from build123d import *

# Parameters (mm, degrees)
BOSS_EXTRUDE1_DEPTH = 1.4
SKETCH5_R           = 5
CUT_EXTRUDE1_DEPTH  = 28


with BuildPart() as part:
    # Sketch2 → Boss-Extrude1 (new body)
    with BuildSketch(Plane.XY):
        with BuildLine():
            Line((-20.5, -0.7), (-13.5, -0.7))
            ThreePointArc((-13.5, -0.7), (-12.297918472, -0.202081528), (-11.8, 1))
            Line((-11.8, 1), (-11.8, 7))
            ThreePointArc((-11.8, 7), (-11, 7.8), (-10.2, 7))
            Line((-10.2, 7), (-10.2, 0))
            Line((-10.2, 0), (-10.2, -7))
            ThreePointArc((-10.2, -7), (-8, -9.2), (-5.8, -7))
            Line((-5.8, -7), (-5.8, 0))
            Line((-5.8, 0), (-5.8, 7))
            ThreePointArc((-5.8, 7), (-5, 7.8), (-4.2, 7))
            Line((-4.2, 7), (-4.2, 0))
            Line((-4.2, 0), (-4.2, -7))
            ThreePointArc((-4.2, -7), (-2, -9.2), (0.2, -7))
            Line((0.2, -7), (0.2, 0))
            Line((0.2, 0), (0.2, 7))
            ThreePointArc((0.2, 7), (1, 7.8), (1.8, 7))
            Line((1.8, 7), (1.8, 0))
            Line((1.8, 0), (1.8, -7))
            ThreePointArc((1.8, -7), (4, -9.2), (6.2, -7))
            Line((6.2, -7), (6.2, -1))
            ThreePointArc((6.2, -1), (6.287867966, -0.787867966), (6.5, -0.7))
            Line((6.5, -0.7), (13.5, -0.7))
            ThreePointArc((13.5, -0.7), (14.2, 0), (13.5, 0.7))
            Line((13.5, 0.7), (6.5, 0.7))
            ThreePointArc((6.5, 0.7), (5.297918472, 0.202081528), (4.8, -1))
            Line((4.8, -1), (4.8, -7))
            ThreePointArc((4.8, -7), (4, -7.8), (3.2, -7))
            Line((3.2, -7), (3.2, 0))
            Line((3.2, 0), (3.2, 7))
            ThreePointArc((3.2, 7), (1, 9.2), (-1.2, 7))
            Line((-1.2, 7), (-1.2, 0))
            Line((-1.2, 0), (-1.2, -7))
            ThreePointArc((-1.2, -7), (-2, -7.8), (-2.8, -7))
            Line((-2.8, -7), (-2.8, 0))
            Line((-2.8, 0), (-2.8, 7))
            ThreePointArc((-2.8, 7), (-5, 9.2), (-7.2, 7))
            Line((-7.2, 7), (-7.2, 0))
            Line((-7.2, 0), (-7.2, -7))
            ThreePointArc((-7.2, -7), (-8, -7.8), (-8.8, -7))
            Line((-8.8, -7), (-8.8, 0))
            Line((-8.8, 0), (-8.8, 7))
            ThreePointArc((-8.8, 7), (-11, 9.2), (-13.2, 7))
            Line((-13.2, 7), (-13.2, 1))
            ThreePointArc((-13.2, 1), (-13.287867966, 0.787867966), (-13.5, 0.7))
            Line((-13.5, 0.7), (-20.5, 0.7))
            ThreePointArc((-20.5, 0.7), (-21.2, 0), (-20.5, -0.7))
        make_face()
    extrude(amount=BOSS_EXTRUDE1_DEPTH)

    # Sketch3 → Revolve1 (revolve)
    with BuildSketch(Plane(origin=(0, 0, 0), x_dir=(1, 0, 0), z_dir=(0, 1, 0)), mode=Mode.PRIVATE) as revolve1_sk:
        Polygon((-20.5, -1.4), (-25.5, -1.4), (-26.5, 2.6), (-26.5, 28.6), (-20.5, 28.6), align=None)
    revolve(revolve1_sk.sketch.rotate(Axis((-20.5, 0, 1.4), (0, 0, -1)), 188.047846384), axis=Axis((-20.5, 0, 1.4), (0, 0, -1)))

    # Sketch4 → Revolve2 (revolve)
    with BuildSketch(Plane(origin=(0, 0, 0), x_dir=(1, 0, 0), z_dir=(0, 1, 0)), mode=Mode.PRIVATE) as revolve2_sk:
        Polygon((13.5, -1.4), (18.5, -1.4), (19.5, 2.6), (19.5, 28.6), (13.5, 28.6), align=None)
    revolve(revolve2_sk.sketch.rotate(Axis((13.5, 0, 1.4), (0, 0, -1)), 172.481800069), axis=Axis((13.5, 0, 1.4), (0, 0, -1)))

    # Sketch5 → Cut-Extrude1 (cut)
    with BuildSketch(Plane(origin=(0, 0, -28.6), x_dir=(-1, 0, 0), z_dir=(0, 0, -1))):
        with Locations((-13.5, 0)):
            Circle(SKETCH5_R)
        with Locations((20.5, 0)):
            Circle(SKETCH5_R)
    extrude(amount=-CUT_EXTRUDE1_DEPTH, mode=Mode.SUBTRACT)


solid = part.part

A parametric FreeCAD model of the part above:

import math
import FreeCAD as App
import Part
import Sketcher
from FreeCAD import Vector


def add_polygon(sketch, points):
    """Adds a closed chain of lines whose ends are joined by coincident constraints."""
    first, n = sketch.GeometryCount, len(points)
    for a, b in zip(points, points[1:] + points[:1]):
        sketch.addGeometry(Part.LineSegment(App.Vector(*a, 0), App.Vector(*b, 0)), False)
    for i in range(n):
        sketch.addConstraint(Sketcher.Constraint("Coincident", first + i, 2, first + (i + 1) % n, 1))

doc = App.newDocument("Part")
body = doc.addObject("PartDesign::Body", "Body")

sketch1 = body.newObject("Sketcher::SketchObject", "Sketch")
sketch1.AttachmentSupport = (doc.getObject("XY_Plane"), [""])
sketch1.MapMode = "FlatFace"
sketch1.addGeometry(Part.LineSegment(Vector(-20.5, -0.7, 0), Vector(-13.5, -0.7, 0)), False)
sketch1.addGeometry(Part.ArcOfCircle(Part.Circle(Vector(-13.5, 1, 0), Vector(0, 0, 1), 1.7), math.radians(-90), math.radians(0)), False)
sketch1.addGeometry(Part.LineSegment(Vector(-11.8, 1, 0), Vector(-11.8, 7, 0)), False)
sketch1.addGeometry(Part.ArcOfCircle(Part.Circle(Vector(-11, 7, 0), Vector(0, 0, 1), 0.8), math.radians(0), math.radians(180)), False)
sketch1.addGeometry(Part.LineSegment(Vector(-10.2, 7, 0), Vector(-10.2, -7, 0)), False)
sketch1.addGeometry(Part.ArcOfCircle(Part.Circle(Vector(-8, -7, 0), Vector(0, 0, 1), 2.2), math.radians(180), math.radians(360)), False)
sketch1.addGeometry(Part.LineSegment(Vector(-5.8, -7, 0), Vector(-5.8, 7, 0)), False)
sketch1.addGeometry(Part.ArcOfCircle(Part.Circle(Vector(-5, 7, 0), Vector(0, 0, 1), 0.8), math.radians(0), math.radians(180)), False)
sketch1.addGeometry(Part.LineSegment(Vector(-4.2, 7, 0), Vector(-4.2, -7, 0)), False)
sketch1.addGeometry(Part.ArcOfCircle(Part.Circle(Vector(-2, -7, 0), Vector(0, 0, 1), 2.2), math.radians(180), math.radians(360)), False)
sketch1.addGeometry(Part.LineSegment(Vector(0.2, -7, 0), Vector(0.2, 7, 0)), False)
sketch1.addGeometry(Part.ArcOfCircle(Part.Circle(Vector(1, 7, 0), Vector(0, 0, 1), 0.8), math.radians(0), math.radians(180)), False)
sketch1.addGeometry(Part.LineSegment(Vector(1.8, 7, 0), Vector(1.8, -7, 0)), False)
sketch1.addGeometry(Part.ArcOfCircle(Part.Circle(Vector(4, -7, 0), Vector(0, 0, 1), 2.2), math.radians(180), math.radians(360)), False)
sketch1.addGeometry(Part.LineSegment(Vector(6.2, -7, 0), Vector(6.2, -1, 0)), False)
sketch1.addGeometry(Part.ArcOfCircle(Part.Circle(Vector(6.5, -1, 0), Vector(0, 0, 1), 0.3), math.radians(90), math.radians(180)), False)
sketch1.addGeometry(Part.LineSegment(Vector(6.5, -0.7, 0), Vector(13.5, -0.7, 0)), False)
sketch1.addGeometry(Part.ArcOfCircle(Part.Circle(Vector(13.5, 0, 0), Vector(0, 0, 1), 0.7), math.radians(-90), math.radians(90)), False)
sketch1.addGeometry(Part.LineSegment(Vector(13.5, 0.7, 0), Vector(6.5, 0.7, 0)), False)
sketch1.addGeometry(Part.ArcOfCircle(Part.Circle(Vector(6.5, -1, 0), Vector(0, 0, 1), 1.7), math.radians(90), math.radians(180)), False)
sketch1.addGeometry(Part.LineSegment(Vector(4.8, -1, 0), Vector(4.8, -7, 0)), False)
sketch1.addGeometry(Part.ArcOfCircle(Part.Circle(Vector(4, -7, 0), Vector(0, 0, 1), 0.8), math.radians(180), math.radians(360)), False)
sketch1.addGeometry(Part.LineSegment(Vector(3.2, -7, 0), Vector(3.2, 7, 0)), False)
sketch1.addGeometry(Part.ArcOfCircle(Part.Circle(Vector(1, 7, 0), Vector(0, 0, 1), 2.2), math.radians(0), math.radians(180)), False)
sketch1.addGeometry(Part.LineSegment(Vector(-1.2, 7, 0), Vector(-1.2, -7, 0)), False)
sketch1.addGeometry(Part.ArcOfCircle(Part.Circle(Vector(-2, -7, 0), Vector(0, 0, 1), 0.8), math.radians(180), math.radians(360)), False)
sketch1.addGeometry(Part.LineSegment(Vector(-2.8, -7, 0), Vector(-2.8, 7, 0)), False)
sketch1.addGeometry(Part.ArcOfCircle(Part.Circle(Vector(-5, 7, 0), Vector(0, 0, 1), 2.2), math.radians(0), math.radians(180)), False)
sketch1.addGeometry(Part.LineSegment(Vector(-7.2, 7, 0), Vector(-7.2, -7, 0)), False)
sketch1.addGeometry(Part.ArcOfCircle(Part.Circle(Vector(-8, -7, 0), Vector(0, 0, 1), 0.8), math.radians(180), math.radians(360)), False)
sketch1.addGeometry(Part.LineSegment(Vector(-8.8, -7, 0), Vector(-8.8, 7, 0)), False)
sketch1.addGeometry(Part.ArcOfCircle(Part.Circle(Vector(-11, 7, 0), Vector(0, 0, 1), 2.2), math.radians(0), math.radians(180)), False)
sketch1.addGeometry(Part.LineSegment(Vector(-13.2, 7, 0), Vector(-13.2, 1, 0)), False)
sketch1.addGeometry(Part.ArcOfCircle(Part.Circle(Vector(-13.5, 1, 0), Vector(0, 0, 1), 0.3), math.radians(-90), math.radians(0)), False)
sketch1.addGeometry(Part.LineSegment(Vector(-13.5, 0.7, 0), Vector(-20.5, 0.7, 0)), False)
sketch1.addGeometry(Part.ArcOfCircle(Part.Circle(Vector(-20.5, 0, 0), Vector(0, 0, 1), 0.7), math.radians(90), math.radians(270)), False)
sketch1.addConstraint(Sketcher.Constraint("Tangent", 0, 2, 1, 1))
sketch1.addConstraint(Sketcher.Constraint("Tangent", 1, 2, 2, 1))
sketch1.addConstraint(Sketcher.Constraint("Tangent", 2, 2, 3, 2))
sketch1.addConstraint(Sketcher.Constraint("Tangent", 3, 1, 4, 1))
sketch1.addConstraint(Sketcher.Constraint("Tangent", 4, 2, 5, 1))
sketch1.addConstraint(Sketcher.Constraint("Tangent", 5, 2, 6, 1))
sketch1.addConstraint(Sketcher.Constraint("Tangent", 6, 2, 7, 2))
sketch1.addConstraint(Sketcher.Constraint("Tangent", 7, 1, 8, 1))
sketch1.addConstraint(Sketcher.Constraint("Tangent", 8, 2, 9, 1))
sketch1.addConstraint(Sketcher.Constraint("Tangent", 9, 2, 10, 1))
sketch1.addConstraint(Sketcher.Constraint("Tangent", 10, 2, 11, 2))
sketch1.addConstraint(Sketcher.Constraint("Tangent", 11, 1, 12, 1))
sketch1.addConstraint(Sketcher.Constraint("Tangent", 12, 2, 13, 1))
sketch1.addConstraint(Sketcher.Constraint("Tangent", 13, 2, 14, 1))
sketch1.addConstraint(Sketcher.Constraint("Tangent", 14, 2, 15, 2))
sketch1.addConstraint(Sketcher.Constraint("Tangent", 15, 1, 16, 1))
sketch1.addConstraint(Sketcher.Constraint("Tangent", 16, 2, 17, 1))
sketch1.addConstraint(Sketcher.Constraint("Tangent", 17, 2, 18, 1))
sketch1.addConstraint(Sketcher.Constraint("Tangent", 18, 2, 19, 1))
sketch1.addConstraint(Sketcher.Constraint("Tangent", 19, 2, 20, 1))
sketch1.addConstraint(Sketcher.Constraint("Tangent", 20, 2, 21, 2))
sketch1.addConstraint(Sketcher.Constraint("Tangent", 21, 1, 22, 1))
sketch1.addConstraint(Sketcher.Constraint("Tangent", 22, 2, 23, 1))
sketch1.addConstraint(Sketcher.Constraint("Tangent", 23, 2, 24, 1))
sketch1.addConstraint(Sketcher.Constraint("Tangent", 24, 2, 25, 2))
sketch1.addConstraint(Sketcher.Constraint("Tangent", 25, 1, 26, 1))
sketch1.addConstraint(Sketcher.Constraint("Tangent", 26, 2, 27, 1))
sketch1.addConstraint(Sketcher.Constraint("Tangent", 27, 2, 28, 1))
sketch1.addConstraint(Sketcher.Constraint("Tangent", 28, 2, 29, 2))
sketch1.addConstraint(Sketcher.Constraint("Tangent", 29, 1, 30, 1))
sketch1.addConstraint(Sketcher.Constraint("Tangent", 30, 2, 31, 1))
sketch1.addConstraint(Sketcher.Constraint("Tangent", 31, 2, 32, 1))
sketch1.addConstraint(Sketcher.Constraint("Tangent", 32, 2, 33, 2))
sketch1.addConstraint(Sketcher.Constraint("Tangent", 33, 1, 34, 1))
sketch1.addConstraint(Sketcher.Constraint("Tangent", 34, 2, 35, 1))
sketch1.addConstraint(Sketcher.Constraint("Tangent", 35, 2, 0, 1))
sketch1.addConstraint(Sketcher.Constraint("Horizontal", 0))
sketch1.addConstraint(Sketcher.Constraint("Vertical", 2))
sketch1.addConstraint(Sketcher.Constraint("Vertical", 4))
sketch1.addConstraint(Sketcher.Constraint("Vertical", 6))
sketch1.addConstraint(Sketcher.Constraint("Vertical", 8))
sketch1.addConstraint(Sketcher.Constraint("Vertical", 10))
sketch1.addConstraint(Sketcher.Constraint("Vertical", 12))
sketch1.addConstraint(Sketcher.Constraint("Vertical", 14))
sketch1.addConstraint(Sketcher.Constraint("Horizontal", 16))
sketch1.addConstraint(Sketcher.Constraint("Horizontal", 18))
sketch1.addConstraint(Sketcher.Constraint("Vertical", 20))
sketch1.addConstraint(Sketcher.Constraint("Vertical", 22))
sketch1.addConstraint(Sketcher.Constraint("Vertical", 24))
sketch1.addConstraint(Sketcher.Constraint("Vertical", 26))
sketch1.addConstraint(Sketcher.Constraint("Vertical", 28))
sketch1.addConstraint(Sketcher.Constraint("Vertical", 30))
sketch1.addConstraint(Sketcher.Constraint("Vertical", 32))
sketch1.addConstraint(Sketcher.Constraint("Horizontal", 34))
sketch1.addConstraint(Sketcher.Constraint("Coincident", 19, 3, 15, 3))
sketch1.addConstraint(Sketcher.Constraint("Coincident", 21, 3, 13, 3))
sketch1.addConstraint(Sketcher.Constraint("Coincident", 23, 3, 11, 3))
sketch1.addConstraint(Sketcher.Constraint("Coincident", 25, 3, 9, 3))
sketch1.addConstraint(Sketcher.Constraint("Coincident", 27, 3, 7, 3))
sketch1.addConstraint(Sketcher.Constraint("Coincident", 29, 3, 5, 3))
sketch1.addConstraint(Sketcher.Constraint("Coincident", 31, 3, 3, 3))
sketch1.addConstraint(Sketcher.Constraint("Coincident", 33, 3, 1, 3))
sketch1.addConstraint(Sketcher.Constraint("Equal", 3, 7))
sketch1.addConstraint(Sketcher.Constraint("Equal", 5, 9))
sketch1.addConstraint(Sketcher.Constraint("Equal", 7, 11))
sketch1.addConstraint(Sketcher.Constraint("Equal", 9, 13))
sketch1.addConstraint(Sketcher.Constraint("Equal", 1, 19))
sketch1.addConstraint(Sketcher.Constraint("Equal", 11, 21))
sketch1.addConstraint(Sketcher.Constraint("Symmetric", 0, 2, 17, 2, -1, 1))
sketch1.addConstraint(Sketcher.Constraint("PointOnObject", 17, 3, -1))
sketch1.addConstraint(Sketcher.Constraint("Horizontal", 3, 3, 7, 3))
sketch1.addConstraint(Sketcher.Constraint("Horizontal", 5, 3, 9, 3))
sketch1.addConstraint(Sketcher.Constraint("Horizontal", 7, 3, 11, 3))
sketch1.addConstraint(Sketcher.Constraint("Horizontal", 9, 3, 13, 3))
sketch1.addConstraint(Sketcher.Constraint("Equal", 0, 16))
sketch1.addConstraint(Sketcher.Constraint("Equal", 2, 14))
sketch1.addConstraint(Sketcher.Constraint("Radius", 1, 1.7))
sketch1.addConstraint(Sketcher.Constraint("Radius", 3, 0.8))
sketch1.addConstraint(Sketcher.Constraint("Radius", 5, 2.2))
sketch1.addConstraint(Sketcher.Constraint("DistanceX", 0, 1, 0, 2, 7.0))
sketch1.addConstraint(Sketcher.Constraint("DistanceY", 2, 1, 2, 2, 6.0))
pad1 = body.newObject("PartDesign::Pad", "Pad")
pad1.Profile = sketch1
pad1.Length = 1.4

sketch2 = body.newObject("Sketcher::SketchObject", "Sketch001")
sketch2.AttachmentSupport = (doc.getObject("XZ_Plane"), [""])
sketch2.MapMode = "FlatFace"
add_polygon(sketch2, [(-25.5, 1.4), (-20.5, 1.4), (-20.5, -28.6), (-26.5, -28.6), (-26.5, -2.6)])
sketch2.addGeometry(Part.LineSegment(Vector(-20.5, 1.4, 0), Vector(-20.5, -28.6, 0)), True)
sketch2.addConstraint(Sketcher.Constraint("Horizontal", 0))
sketch2.addConstraint(Sketcher.Constraint("Vertical", 1))
sketch2.addConstraint(Sketcher.Constraint("Horizontal", 2))
sketch2.addConstraint(Sketcher.Constraint("Vertical", 3))
sketch2.addConstraint(Sketcher.Constraint("Vertical", 5))
sketch2.addConstraint(Sketcher.Constraint("Coincident", 5, 1, 0, 2))
sketch2.addConstraint(Sketcher.Constraint("Horizontal", 2, 2, 5, 2))
sketch2.addConstraint(Sketcher.Constraint("DistanceX", 0, 1, 0, 2, 5.0))
sketch2.addConstraint(Sketcher.Constraint("DistanceX", 2, 2, 2, 1, 6.0))
sketch2.addConstraint(Sketcher.Constraint("DistanceY", 1, 2, 1, 1, 30.0))
sketch2.addConstraint(Sketcher.Constraint("DistanceY", 3, 1, 3, 2, 26.0))
sketch2.addConstraint(Sketcher.Constraint("DistanceX", 0, 2, -1, 1, 20.5))
sketch2.addConstraint(Sketcher.Constraint("DistanceY", -1, 1, 0, 2, 1.4))
revolution = body.newObject("PartDesign::Revolution", "Revolution")
revolution.Profile = sketch2
revolution.ReferenceAxis = (sketch2, ["Axis0"])
revolution.Angle = 360

sketch3 = body.newObject("Sketcher::SketchObject", "Sketch002")
sketch3.AttachmentSupport = (doc.getObject("XZ_Plane"), [""])
sketch3.MapMode = "FlatFace"
add_polygon(sketch3, [(13.5, 1.4), (18.5, 1.4), (19.5, -2.6), (19.5, -28.6), (13.5, -28.6)])
sketch3.addGeometry(Part.LineSegment(Vector(13.5, 1.4, 0), Vector(13.5, -28.6, 0)), True)
sketch3.addConstraint(Sketcher.Constraint("Horizontal", 0))
sketch3.addConstraint(Sketcher.Constraint("Vertical", 2))
sketch3.addConstraint(Sketcher.Constraint("Horizontal", 3))
sketch3.addConstraint(Sketcher.Constraint("Vertical", 4))
sketch3.addConstraint(Sketcher.Constraint("Vertical", 5))
sketch3.addConstraint(Sketcher.Constraint("Coincident", 5, 1, 4, 2))
sketch3.addConstraint(Sketcher.Constraint("Horizontal", 2, 2, 5, 2))
sketch3.addConstraint(Sketcher.Constraint("DistanceX", 0, 1, 0, 2, 5.0))
sketch3.addConstraint(Sketcher.Constraint("DistanceX", 3, 2, 3, 1, 6.0))
sketch3.addConstraint(Sketcher.Constraint("DistanceY", 2, 2, 2, 1, 26.0))
sketch3.addConstraint(Sketcher.Constraint("DistanceY", 4, 1, 4, 2, 30.0))
sketch3.addConstraint(Sketcher.Constraint("DistanceX", -1, 1, 0, 2, 18.5))
sketch3.addConstraint(Sketcher.Constraint("DistanceY", -1, 1, 0, 2, 1.4))
revolution2 = body.newObject("PartDesign::Revolution", "Revolution001")
revolution2.Profile = sketch3
revolution2.ReferenceAxis = (sketch3, ["Axis0"])
revolution2.Angle = 360

sketch4 = body.newObject("Sketcher::SketchObject", "Sketch003")
sketch4.AttachmentSupport = (doc.getObject("XY_Plane"), [""])
sketch4.MapMode = "FlatFace"
sketch4.AttachmentOffset = App.Placement(Vector(0, 0, -28.6), App.Rotation())
sketch4.addGeometry(Part.Circle(Vector(13.5, 0, 0), Vector(0, 0, 1), 5), False)
sketch4.addGeometry(Part.Circle(Vector(-20.5, 0, 0), Vector(0, 0, 1), 5), False)
sketch4.addConstraint(Sketcher.Constraint("Equal", 0, 1))
sketch4.addConstraint(Sketcher.Constraint("PointOnObject", 0, 3, -1))
sketch4.addConstraint(Sketcher.Constraint("PointOnObject", 1, 3, -1))
sketch4.addConstraint(Sketcher.Constraint("Diameter", 0, 10.0))
sketch4.addConstraint(Sketcher.Constraint("DistanceX", 1, 3, 0, 3, 34.0))
sketch4.addConstraint(Sketcher.Constraint("DistanceX", -1, 1, 0, 3, 13.5))
pocket1 = body.newObject("PartDesign::Pocket", "Pocket")
pocket1.Profile = sketch4
pocket1.Length = 28
pocket1.Reversed = True

doc.recompute()
